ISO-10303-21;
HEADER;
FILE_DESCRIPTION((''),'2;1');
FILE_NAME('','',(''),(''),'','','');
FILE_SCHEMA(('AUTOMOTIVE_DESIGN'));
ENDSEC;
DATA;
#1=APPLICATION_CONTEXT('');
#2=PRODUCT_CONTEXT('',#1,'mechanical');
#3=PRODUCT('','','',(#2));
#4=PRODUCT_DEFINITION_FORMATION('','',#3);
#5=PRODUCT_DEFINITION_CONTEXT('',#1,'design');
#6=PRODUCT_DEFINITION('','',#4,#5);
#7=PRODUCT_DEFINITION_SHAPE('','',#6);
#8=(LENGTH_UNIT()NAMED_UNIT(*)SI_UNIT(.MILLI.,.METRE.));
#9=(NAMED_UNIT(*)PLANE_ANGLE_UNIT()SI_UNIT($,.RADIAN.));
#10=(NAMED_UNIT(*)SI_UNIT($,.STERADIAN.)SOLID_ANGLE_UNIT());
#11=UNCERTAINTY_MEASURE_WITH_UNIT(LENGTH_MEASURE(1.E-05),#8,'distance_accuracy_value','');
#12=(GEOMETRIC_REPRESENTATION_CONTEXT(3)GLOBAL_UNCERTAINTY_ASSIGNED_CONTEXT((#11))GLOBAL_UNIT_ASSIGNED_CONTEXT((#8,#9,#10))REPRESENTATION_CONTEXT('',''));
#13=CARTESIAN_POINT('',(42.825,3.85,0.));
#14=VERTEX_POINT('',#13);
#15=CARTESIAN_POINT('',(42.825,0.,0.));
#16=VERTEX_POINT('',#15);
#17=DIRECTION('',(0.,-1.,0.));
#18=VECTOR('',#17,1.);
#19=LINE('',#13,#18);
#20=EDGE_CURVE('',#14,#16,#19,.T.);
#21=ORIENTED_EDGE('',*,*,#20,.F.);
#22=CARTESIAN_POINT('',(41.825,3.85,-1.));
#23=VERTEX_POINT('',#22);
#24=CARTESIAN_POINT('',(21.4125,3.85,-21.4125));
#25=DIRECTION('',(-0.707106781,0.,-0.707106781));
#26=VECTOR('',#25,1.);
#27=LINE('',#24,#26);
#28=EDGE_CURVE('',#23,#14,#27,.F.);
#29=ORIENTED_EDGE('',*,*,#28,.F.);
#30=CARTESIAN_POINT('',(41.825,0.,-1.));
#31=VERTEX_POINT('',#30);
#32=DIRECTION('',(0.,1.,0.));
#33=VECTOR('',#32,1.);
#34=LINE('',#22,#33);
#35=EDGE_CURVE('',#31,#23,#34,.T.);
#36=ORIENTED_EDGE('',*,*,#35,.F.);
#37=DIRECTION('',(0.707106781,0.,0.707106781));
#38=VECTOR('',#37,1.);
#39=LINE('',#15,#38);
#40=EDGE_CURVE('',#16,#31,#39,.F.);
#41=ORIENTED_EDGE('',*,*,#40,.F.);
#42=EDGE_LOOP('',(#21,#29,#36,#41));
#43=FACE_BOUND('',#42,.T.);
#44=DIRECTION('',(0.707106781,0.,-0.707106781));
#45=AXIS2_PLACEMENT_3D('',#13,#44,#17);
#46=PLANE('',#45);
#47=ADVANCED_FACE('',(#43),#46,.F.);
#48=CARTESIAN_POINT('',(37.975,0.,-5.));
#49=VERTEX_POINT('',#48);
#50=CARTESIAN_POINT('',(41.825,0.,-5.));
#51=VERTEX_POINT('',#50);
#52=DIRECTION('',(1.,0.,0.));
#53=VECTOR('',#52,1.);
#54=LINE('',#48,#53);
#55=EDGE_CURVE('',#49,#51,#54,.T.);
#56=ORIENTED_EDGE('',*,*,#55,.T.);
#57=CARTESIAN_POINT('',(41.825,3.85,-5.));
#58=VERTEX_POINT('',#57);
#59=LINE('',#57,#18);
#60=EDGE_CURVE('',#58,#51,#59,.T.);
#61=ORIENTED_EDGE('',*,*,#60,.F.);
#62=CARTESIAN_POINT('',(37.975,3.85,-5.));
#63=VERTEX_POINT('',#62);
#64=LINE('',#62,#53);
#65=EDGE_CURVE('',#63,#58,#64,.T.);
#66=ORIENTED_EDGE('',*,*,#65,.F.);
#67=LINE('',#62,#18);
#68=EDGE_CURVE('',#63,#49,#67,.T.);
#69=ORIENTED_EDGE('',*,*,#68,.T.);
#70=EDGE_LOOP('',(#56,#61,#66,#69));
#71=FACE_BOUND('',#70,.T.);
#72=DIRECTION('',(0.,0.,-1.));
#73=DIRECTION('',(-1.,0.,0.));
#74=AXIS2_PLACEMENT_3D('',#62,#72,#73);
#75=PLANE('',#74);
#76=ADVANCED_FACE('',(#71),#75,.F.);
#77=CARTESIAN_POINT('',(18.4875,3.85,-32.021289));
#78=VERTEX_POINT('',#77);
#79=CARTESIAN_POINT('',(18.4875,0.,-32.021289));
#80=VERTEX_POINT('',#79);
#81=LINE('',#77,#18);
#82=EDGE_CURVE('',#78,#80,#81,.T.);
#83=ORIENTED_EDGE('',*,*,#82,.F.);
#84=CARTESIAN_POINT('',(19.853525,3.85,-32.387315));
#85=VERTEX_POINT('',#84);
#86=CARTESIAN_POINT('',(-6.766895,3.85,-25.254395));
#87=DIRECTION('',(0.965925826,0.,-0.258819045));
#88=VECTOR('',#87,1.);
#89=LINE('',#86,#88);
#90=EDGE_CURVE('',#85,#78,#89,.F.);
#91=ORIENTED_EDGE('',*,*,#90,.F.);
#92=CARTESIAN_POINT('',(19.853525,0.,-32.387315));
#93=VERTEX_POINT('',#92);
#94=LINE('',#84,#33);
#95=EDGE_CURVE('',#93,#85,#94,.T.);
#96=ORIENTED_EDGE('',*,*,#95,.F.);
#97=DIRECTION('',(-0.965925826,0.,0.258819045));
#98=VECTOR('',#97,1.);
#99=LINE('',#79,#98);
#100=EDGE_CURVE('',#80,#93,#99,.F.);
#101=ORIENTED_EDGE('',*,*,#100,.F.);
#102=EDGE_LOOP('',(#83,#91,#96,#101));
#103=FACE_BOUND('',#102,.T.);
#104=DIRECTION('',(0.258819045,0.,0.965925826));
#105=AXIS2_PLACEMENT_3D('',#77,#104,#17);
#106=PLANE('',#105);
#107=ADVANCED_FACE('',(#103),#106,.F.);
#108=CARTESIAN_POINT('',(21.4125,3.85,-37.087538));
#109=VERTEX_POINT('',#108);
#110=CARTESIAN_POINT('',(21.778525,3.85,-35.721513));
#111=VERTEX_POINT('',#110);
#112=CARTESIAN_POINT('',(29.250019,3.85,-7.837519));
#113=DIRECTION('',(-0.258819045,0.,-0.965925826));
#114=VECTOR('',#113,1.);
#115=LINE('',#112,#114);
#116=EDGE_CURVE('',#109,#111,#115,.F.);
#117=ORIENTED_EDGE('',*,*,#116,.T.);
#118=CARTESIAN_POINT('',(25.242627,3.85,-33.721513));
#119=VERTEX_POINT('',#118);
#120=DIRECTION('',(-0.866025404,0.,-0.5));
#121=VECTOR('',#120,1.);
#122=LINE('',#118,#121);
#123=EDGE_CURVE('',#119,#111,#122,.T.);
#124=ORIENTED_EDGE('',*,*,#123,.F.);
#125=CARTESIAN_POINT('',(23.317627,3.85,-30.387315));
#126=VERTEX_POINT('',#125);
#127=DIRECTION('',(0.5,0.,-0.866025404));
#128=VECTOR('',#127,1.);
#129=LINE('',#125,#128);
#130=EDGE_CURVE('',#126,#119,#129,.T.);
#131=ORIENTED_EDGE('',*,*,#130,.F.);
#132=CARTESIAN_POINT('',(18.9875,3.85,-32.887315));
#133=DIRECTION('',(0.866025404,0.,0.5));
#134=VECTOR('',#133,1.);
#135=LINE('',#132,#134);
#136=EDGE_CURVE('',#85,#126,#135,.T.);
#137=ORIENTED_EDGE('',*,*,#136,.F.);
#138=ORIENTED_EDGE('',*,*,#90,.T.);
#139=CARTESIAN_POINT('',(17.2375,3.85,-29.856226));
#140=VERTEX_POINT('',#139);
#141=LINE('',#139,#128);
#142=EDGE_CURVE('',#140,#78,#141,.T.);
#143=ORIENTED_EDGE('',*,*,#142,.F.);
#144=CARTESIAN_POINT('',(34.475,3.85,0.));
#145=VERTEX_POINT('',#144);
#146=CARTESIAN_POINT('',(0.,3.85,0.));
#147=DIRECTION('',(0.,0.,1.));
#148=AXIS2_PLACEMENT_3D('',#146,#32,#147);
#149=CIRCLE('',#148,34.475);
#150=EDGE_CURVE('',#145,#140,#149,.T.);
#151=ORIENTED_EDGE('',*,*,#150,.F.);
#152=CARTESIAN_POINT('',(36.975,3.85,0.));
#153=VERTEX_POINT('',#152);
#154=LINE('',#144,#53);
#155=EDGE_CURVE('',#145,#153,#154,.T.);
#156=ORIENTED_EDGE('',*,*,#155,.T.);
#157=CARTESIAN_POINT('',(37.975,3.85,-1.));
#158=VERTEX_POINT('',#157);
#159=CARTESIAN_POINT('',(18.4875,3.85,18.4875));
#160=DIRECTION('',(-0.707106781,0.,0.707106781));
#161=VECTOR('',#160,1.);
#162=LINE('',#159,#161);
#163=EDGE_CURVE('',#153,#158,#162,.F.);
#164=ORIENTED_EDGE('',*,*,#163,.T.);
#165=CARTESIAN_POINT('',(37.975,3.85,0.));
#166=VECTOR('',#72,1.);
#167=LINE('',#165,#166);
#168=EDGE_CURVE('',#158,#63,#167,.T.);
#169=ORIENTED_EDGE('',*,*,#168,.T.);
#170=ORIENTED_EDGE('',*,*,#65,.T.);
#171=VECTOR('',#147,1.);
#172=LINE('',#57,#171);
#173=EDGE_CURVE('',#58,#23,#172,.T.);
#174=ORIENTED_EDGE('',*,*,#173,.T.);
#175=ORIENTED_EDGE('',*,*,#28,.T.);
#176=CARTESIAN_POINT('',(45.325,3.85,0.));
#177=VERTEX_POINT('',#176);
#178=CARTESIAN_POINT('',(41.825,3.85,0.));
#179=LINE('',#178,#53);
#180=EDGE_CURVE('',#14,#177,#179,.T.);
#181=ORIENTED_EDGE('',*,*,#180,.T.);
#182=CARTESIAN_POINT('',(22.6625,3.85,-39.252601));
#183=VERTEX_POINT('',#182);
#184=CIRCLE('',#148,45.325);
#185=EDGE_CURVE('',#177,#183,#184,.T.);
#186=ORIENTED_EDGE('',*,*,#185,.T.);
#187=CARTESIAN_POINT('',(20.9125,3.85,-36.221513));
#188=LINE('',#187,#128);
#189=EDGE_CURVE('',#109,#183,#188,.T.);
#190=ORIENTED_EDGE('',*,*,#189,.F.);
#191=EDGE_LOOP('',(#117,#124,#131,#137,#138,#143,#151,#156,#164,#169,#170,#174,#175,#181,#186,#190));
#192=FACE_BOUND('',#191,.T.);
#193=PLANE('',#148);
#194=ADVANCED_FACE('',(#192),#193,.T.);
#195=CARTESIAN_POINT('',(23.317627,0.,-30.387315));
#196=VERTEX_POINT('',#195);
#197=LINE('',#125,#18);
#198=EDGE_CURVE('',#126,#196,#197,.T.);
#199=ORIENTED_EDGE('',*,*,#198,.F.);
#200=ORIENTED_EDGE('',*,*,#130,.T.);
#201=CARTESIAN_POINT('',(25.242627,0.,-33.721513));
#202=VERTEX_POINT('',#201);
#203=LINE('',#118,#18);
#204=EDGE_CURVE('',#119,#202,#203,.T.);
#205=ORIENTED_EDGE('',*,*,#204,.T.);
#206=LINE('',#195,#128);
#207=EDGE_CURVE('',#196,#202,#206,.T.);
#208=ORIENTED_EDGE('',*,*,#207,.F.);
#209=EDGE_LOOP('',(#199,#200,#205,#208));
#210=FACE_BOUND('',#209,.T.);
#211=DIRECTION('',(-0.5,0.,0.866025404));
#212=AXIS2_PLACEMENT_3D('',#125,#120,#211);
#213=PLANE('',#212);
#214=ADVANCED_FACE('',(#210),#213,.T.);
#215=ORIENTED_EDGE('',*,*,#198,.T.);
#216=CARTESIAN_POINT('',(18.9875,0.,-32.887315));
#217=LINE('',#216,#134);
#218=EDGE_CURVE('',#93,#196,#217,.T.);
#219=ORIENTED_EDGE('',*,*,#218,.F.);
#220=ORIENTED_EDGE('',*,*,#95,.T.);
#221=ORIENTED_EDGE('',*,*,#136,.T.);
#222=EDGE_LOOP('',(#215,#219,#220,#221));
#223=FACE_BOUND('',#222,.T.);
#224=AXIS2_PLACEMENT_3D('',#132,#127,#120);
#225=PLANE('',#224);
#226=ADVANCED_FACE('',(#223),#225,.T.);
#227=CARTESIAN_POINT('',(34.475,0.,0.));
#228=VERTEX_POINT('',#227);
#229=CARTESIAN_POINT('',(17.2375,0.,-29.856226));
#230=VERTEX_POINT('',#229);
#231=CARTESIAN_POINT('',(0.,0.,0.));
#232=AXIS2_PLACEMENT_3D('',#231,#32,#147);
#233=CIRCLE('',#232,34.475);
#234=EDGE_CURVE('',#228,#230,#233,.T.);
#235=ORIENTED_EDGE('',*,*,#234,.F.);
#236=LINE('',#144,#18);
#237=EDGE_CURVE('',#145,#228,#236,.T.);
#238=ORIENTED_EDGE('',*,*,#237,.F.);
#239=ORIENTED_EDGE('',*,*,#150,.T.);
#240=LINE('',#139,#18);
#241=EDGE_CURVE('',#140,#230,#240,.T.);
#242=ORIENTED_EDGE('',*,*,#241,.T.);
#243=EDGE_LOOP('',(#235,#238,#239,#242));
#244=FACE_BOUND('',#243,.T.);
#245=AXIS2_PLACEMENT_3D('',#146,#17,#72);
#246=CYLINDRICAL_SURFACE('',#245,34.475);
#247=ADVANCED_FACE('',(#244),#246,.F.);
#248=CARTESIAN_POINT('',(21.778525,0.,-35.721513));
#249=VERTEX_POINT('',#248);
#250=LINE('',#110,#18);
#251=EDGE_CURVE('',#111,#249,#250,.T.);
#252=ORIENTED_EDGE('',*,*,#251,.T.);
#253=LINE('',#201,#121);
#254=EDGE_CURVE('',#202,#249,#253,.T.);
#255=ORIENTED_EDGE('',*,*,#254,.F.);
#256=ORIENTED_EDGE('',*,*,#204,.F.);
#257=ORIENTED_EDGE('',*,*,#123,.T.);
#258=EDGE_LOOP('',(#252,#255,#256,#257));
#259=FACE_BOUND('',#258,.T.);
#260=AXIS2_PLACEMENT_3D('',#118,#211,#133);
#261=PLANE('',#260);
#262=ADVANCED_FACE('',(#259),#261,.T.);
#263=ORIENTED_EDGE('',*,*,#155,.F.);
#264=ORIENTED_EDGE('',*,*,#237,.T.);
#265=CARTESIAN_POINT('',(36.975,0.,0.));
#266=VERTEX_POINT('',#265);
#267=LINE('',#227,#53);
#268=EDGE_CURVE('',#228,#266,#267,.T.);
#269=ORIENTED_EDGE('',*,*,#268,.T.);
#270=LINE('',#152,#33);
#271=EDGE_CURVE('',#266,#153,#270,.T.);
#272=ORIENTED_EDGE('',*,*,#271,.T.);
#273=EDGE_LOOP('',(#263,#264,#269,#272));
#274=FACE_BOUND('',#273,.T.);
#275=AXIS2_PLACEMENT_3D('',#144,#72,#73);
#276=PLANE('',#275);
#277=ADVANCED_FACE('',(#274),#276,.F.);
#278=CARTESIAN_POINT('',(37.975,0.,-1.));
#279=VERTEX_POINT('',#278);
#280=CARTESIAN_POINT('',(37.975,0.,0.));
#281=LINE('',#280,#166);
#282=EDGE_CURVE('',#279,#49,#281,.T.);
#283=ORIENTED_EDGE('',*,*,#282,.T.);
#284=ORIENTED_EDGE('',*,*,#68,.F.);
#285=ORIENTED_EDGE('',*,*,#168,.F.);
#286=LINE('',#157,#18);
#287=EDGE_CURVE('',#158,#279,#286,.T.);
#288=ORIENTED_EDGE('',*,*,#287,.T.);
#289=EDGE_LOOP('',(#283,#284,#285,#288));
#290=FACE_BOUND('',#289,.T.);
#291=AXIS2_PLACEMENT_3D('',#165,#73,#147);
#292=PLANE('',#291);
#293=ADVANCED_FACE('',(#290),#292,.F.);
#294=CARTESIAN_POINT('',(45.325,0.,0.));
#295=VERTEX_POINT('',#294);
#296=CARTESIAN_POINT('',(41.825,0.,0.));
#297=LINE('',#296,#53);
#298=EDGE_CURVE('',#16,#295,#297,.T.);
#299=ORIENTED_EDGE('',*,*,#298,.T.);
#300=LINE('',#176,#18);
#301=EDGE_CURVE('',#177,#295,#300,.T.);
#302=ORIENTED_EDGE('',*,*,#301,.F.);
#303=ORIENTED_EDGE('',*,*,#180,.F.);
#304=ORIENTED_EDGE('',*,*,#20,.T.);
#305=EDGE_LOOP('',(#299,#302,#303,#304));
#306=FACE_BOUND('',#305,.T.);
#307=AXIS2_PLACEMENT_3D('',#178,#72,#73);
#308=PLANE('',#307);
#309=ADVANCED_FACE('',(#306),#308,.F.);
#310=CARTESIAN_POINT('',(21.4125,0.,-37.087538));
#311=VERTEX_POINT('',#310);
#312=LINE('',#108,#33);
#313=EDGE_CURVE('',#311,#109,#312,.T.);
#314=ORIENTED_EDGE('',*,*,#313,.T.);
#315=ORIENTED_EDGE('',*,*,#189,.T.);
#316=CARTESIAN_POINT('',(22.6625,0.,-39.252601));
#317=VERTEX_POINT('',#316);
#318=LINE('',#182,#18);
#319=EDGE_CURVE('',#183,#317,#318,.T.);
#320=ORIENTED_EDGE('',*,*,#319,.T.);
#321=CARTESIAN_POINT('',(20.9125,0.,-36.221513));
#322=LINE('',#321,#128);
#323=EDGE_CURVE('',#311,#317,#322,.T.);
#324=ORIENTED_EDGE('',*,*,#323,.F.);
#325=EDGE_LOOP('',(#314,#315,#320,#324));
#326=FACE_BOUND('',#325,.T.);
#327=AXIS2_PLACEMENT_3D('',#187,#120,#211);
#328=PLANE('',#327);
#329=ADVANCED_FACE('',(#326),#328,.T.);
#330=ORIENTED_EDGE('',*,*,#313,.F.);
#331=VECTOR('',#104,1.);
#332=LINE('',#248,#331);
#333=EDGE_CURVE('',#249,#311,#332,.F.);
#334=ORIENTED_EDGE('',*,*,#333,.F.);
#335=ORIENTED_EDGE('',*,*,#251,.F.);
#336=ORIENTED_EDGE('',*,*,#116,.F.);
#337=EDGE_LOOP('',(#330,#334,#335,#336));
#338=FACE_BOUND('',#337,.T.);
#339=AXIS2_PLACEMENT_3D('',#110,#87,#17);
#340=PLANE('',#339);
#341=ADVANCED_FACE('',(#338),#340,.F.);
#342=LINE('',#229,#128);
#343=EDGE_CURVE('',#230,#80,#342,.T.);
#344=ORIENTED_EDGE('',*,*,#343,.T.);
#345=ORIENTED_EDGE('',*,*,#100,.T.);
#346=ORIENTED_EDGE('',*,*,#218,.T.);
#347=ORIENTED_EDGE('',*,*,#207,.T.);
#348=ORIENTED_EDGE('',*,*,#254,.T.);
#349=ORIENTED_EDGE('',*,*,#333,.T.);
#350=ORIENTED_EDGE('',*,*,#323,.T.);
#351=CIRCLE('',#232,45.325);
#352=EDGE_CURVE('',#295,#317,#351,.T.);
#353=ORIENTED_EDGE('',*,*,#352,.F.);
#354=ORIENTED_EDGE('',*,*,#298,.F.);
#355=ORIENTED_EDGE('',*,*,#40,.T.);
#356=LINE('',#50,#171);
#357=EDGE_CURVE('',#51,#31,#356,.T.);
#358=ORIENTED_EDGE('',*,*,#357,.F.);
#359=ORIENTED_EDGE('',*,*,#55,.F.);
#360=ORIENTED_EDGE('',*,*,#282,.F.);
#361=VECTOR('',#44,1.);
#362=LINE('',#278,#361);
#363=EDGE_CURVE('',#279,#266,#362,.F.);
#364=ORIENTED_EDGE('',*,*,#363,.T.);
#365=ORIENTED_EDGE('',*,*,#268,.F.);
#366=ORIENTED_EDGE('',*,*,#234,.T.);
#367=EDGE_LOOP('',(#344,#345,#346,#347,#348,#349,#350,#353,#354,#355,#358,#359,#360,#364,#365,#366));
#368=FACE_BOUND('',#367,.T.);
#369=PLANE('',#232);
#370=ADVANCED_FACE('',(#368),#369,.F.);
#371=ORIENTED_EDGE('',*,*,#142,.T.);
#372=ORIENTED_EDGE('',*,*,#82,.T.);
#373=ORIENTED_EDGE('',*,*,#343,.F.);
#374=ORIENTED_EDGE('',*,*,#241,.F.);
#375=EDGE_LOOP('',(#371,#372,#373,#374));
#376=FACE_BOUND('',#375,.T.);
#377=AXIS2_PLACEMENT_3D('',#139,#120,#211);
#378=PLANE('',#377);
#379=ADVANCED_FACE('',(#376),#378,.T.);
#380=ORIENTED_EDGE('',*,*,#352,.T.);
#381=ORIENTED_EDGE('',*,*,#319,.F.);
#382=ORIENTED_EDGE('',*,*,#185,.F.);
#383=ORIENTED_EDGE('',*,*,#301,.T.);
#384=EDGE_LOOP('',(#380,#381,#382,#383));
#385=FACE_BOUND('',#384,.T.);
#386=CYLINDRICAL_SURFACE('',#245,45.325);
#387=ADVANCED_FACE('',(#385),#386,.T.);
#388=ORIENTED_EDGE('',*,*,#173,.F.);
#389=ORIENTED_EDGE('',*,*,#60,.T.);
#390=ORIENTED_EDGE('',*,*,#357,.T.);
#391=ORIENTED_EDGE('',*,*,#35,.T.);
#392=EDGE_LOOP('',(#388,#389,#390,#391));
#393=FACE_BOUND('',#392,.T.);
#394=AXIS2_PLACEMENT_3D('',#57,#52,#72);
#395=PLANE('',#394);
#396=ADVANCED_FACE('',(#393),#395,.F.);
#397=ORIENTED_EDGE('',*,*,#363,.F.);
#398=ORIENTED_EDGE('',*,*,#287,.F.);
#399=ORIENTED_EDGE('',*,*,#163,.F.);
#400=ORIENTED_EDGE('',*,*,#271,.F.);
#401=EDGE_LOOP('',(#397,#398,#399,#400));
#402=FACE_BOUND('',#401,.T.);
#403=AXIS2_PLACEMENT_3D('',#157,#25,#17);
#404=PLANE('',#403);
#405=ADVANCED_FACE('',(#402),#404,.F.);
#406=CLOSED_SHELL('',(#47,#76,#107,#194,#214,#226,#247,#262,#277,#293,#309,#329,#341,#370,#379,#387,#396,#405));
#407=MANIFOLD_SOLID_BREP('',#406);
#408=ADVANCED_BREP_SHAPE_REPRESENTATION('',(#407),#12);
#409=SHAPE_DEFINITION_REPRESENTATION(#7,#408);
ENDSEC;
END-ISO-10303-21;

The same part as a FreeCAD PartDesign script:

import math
import FreeCAD as App
import Part
import Sketcher

V = App.Vector
Q = App.Units.Quantity


def edges_at(feature, points):
    """Names of the edges that pass closest to the given points."""
    edges = feature.Shape.Edges
    near = lambda p: min(range(len(edges)), key=lambda i: edges[i].distToShape(Part.Vertex(*p))[0])
    return sorted({f"Edge{near(p) + 1}" for p in points})

doc = App.newDocument("Part")
body = doc.addObject("PartDesign::Body", "Body")

# Sketch on XZ plane
sketch1 = doc.addObject("Sketcher::SketchObject", "Sketch")
body.addObject(sketch1)
sketch1.AttachmentSupport = (doc.XZ_Plane, [""])
sketch1.MapMode = "FlatFace"
sketch1.addGeometry([
    Part.LineSegment(V(37.975, 0, 0), V(37.975, -5, 0)),  # 0
    Part.LineSegment(V(37.975, -5, 0), V(41.825, -5, 0)),  # 1
    Part.LineSegment(V(41.825, -5, 0), V(41.825, 0, 0)),  # 2
    Part.LineSegment(V(41.825, 0, 0), V(45.325, 0, 0)),  # 3
    Part.ArcOfCircle(Part.Circle(V(0, 0, 0), V(0, 0, 1), 45.325), math.radians(-60), math.radians(0)),  # 4
    Part.LineSegment(V(22.6625, -39.252601, 0), V(20.9125, -36.221513, 0)),  # 5
    Part.LineSegment(V(20.9125, -36.221513, 0), V(25.242627, -33.721513, 0)),  # 6
    Part.LineSegment(V(25.242627, -33.721513, 0), V(23.317627, -30.387315, 0)),  # 7
    Part.LineSegment(V(23.317627, -30.387315, 0), V(18.9875, -32.887315, 0)),  # 8
    Part.LineSegment(V(18.9875, -32.887315, 0), V(17.2375, -29.856226, 0)),  # 9
    Part.ArcOfCircle(Part.Circle(V(0, 0, 0), V(0, 0, 1), 34.475), math.radians(-60), math.radians(0)),  # 10
    Part.LineSegment(V(34.475, 0, 0), V(37.975, 0, 0)),  # 11
], False)
sketch1.addConstraint([
    Sketcher.Constraint("Coincident", 0, 2, 1, 1),
    Sketcher.Constraint("Coincident", 1, 2, 2, 1),
    Sketcher.Constraint("Coincident", 2, 2, 3, 1),
    Sketcher.Constraint("Coincident", 3, 2, 4, 2),
    Sketcher.Constraint("Coincident", 4, 1, 5, 1),
    Sketcher.Constraint("Coincident", 5, 2, 6, 1),
    Sketcher.Constraint("Coincident", 6, 2, 7, 1),
    Sketcher.Constraint("Coincident", 7, 2, 8, 1),
    Sketcher.Constraint("Coincident", 8, 2, 9, 1),
    Sketcher.Constraint("Coincident", 9, 2, 10, 1),
    Sketcher.Constraint("Coincident", 10, 2, 11, 1),
    Sketcher.Constraint("Coincident", 11, 2, 0, 1),
    Sketcher.Constraint("Vertical", 0),
    Sketcher.Constraint("Horizontal", 1),
    Sketcher.Constraint("Vertical", 2),
    Sketcher.Constraint("Horizontal", 3),
    Sketcher.Constraint("Horizontal", 11),
    Sketcher.Constraint("Coincident", 4, 3, -1, 1),
    Sketcher.Constraint("Coincident", 10, 3, -1, 1),
    Sketcher.Constraint("PointOnObject", 2, 2, -1),
    Sketcher.Constraint("PointOnObject", 10, 2, -1),
    Sketcher.Constraint("Perpendicular", 5, 6),
    Sketcher.Constraint("Perpendicular", 6, 7),
    Sketcher.Constraint("Perpendicular", 7, 8),
    Sketcher.Constraint("Perpendicular", 8, 9),
    Sketcher.Constraint("Equal", 3, 11),
    Sketcher.Constraint("Equal", 6, 8),
    Sketcher.Constraint("Equal", 5, 9),
    Sketcher.Constraint("DistanceY", 0, 2, 0, 1, 5.0),
    Sketcher.Constraint("Angle", 5, Q("120 deg")),
    Sketcher.Constraint("Distance", 6, 5.0),
    Sketcher.Constraint("DistanceX", 3, 1, 3, 2, 3.5),
    Sketcher.Constraint("Radius", 4, 45.325),
    Sketcher.Constraint("Radius", 10, 34.475),
    Sketcher.Constraint("Distance", 5, 3.5),
    Sketcher.Constraint("DistanceX", -1, 1, 4, 1, 22.6625),
])
pad1 = doc.addObject("PartDesign::Pad", "Pad")
body.addObject(pad1)
pad1.Profile = sketch1
pad1.Length = 3.85
pad1.Reversed = True
doc.recompute()

chamfer = doc.addObject("PartDesign::Chamfer", "Chamfer")
body.addObject(chamfer)
chamfer.Base = (pad1, edges_at(pad1, [
    (18.988, 1.925, -32.887),
    (20.913, 1.925, -36.222),
    (41.825, 1.925, 0),
    (37.975, 1.925, 0),
]))
chamfer.Size = 1

doc.recompute()
